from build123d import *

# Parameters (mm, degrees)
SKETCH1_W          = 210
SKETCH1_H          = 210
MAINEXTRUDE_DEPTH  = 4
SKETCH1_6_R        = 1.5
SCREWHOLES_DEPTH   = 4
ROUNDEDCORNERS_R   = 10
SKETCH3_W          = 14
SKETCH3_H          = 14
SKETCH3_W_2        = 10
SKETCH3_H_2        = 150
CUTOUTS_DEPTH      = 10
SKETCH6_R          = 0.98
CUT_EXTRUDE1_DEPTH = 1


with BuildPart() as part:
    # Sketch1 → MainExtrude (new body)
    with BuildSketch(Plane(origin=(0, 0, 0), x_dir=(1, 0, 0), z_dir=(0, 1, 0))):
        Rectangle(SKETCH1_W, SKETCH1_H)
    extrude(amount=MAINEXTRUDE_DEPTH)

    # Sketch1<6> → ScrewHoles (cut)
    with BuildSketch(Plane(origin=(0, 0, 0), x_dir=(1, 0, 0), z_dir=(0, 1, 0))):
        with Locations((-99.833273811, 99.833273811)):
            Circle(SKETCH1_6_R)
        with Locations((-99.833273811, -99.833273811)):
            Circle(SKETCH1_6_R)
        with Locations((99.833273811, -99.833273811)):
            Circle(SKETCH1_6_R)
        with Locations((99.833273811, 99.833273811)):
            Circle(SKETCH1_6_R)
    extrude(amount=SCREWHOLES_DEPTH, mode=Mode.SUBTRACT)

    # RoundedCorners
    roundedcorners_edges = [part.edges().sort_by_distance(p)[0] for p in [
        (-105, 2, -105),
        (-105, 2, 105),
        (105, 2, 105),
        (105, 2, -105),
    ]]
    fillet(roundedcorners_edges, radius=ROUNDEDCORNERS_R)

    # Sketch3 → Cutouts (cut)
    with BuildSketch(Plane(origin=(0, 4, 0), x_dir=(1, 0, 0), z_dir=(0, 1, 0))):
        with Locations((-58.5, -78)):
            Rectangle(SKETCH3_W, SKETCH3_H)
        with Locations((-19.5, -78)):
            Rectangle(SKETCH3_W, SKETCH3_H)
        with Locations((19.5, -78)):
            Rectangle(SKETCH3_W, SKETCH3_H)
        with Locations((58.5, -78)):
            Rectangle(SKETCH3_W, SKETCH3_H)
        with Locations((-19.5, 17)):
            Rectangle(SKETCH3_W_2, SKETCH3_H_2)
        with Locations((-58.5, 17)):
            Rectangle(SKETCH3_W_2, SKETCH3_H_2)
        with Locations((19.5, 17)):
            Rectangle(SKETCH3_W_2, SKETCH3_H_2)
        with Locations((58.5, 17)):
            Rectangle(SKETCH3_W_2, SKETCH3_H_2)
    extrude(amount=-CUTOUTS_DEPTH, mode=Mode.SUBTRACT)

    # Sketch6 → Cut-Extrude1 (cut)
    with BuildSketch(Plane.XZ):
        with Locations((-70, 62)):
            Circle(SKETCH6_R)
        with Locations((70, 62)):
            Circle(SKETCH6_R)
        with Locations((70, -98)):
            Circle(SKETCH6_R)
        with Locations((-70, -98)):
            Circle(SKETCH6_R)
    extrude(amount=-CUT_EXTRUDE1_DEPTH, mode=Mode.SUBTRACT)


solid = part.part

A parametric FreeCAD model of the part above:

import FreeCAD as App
import Part
import Sketcher
Q = App.Units.Quantity


def edges_at(feature, points):
    """Names of the edges that pass closest to the given points."""
    edges = feature.Shape.Edges
    near = lambda p: min(range(len(edges)), key=lambda i: edges[i].distToShape(Part.Vertex(*p))[0])
    return sorted({f"Edge{near(p) + 1}" for p in points})


def add_polygon(sketch, points):
    """Adds a closed chain of lines whose ends are joined by coincident constraints."""
    first, n = sketch.GeometryCount, len(points)
    for a, b in zip(points, points[1:] + points[:1]):
        sketch.addGeometry(Part.LineSegment(App.Vector(*a, 0), App.Vector(*b, 0)), False)
    for i in range(n):
        sketch.addConstraint(Sketcher.Constraint("Coincident", first + i, 2, first + (i + 1) % n, 1))

doc = App.newDocument("Part")
params = doc.addObject("Spreadsheet::Sheet", "Params")
for row, (alias, value) in enumerate([
    ("sketch1_width", "210 mm"),
    ("pad1_length", "4 mm"),
    ("sketch2_diameter", "3 mm"),
    ("pocket1_length", "4 mm"),
    ("fillet_radius", "10 mm"),
    ("sketch3_width", "14 mm"),
    ("sketch3_width2", "10 mm"),
    ("sketch3_height", "150 mm"),
    ("pocket2_length", "10 mm"),
    ("sketch4_diameter", "1.96 mm"),
    ("pocket3_length", "1 mm"),
], start=1):
    params.set(f"A{row}", alias)
    params.set(f"B{row}", "=" + value)
    params.setAlias(f"B{row}", alias)

body = doc.addObject("PartDesign::Body", "Body")

# Sketch on XZ plane
sketch1 = doc.addObject("Sketcher::SketchObject", "Sketch")
body.addObject(sketch1)
sketch1.AttachmentSupport = (doc.XZ_Plane, [""])
sketch1.MapMode = "FlatFace"
add_polygon(sketch1, [(-105, -105), (-105, 105), (105, 105), (105, -105)])  # lines 0-3
sketch1.addConstraint([
    Sketcher.Constraint("Vertical", 0),
    Sketcher.Constraint("Horizontal", 1),
    Sketcher.Constraint("Vertical", 2),
    Sketcher.Constraint("Horizontal", 3),
    Sketcher.Constraint("Symmetric", 0, 2, 2, 2, -1, 1),
    Sketcher.Constraint("Equal", 3, 0),
    Sketcher.Constraint("DistanceX", 1, 1, 1, 2, Q("210 mm")),
])
sketch1.setExpression("Constraints[10]", "Params.sketch1_width")
pad1 = doc.addObject("PartDesign::Pad", "Pad")
body.addObject(pad1)
pad1.Profile = sketch1
pad1.setExpression("Length", "Params.pad1_length")
pad1.Reversed = True

# Sketch on XZ plane
sketch2 = doc.addObject("Sketcher::SketchObject", "Sketch001")
body.addObject(sketch2)
sketch2.AttachmentSupport = (doc.XZ_Plane, [""])
sketch2.MapMode = "FlatFace"
sketch2.addGeometry([
    Part.Circle(App.Vector(-99.8, -99.8, 0), App.Vector(0, 0, 1), 1.5),
    Part.Circle(App.Vector(-99.8, 99.8, 0), App.Vector(0, 0, 1), 1.5),
    Part.Circle(App.Vector(99.8, 99.8, 0), App.Vector(0, 0, 1), 1.5),
    Part.Circle(App.Vector(99.8, -99.8, 0), App.Vector(0, 0, 1), 1.5),
], False)
sketch2.addConstraint([
    Sketcher.Constraint("Equal", 0, 1),
    Sketcher.Constraint("Equal", 1, 2),
    Sketcher.Constraint("Equal", 2, 3),
    Sketcher.Constraint("Symmetric", 0, 3, 2, 3, -1, 1),
    Sketcher.Constraint("Symmetric", 1, 3, 3, 3, -1, 1),
    Sketcher.Constraint("Symmetric", 1, 3, 2, 3, -2),
    Sketcher.Constraint("Diameter", 0, Q("3 mm")),
    Sketcher.Constraint("DistanceX", 0, 3, -1, 1, Q("99.833274 mm")),
    Sketcher.Constraint("DistanceY", 0, 3, -1, 1, Q("99.833274 mm")),
])
sketch2.setExpression("Constraints[6]", "Params.sketch2_diameter")
pocket1 = doc.addObject("PartDesign::Pocket", "Pocket")
body.addObject(pocket1)
pocket1.Profile = sketch2
pocket1.setExpression("Length", "Params.pocket1_length")
doc.recompute()

fillet = doc.addObject("PartDesign::Fillet", "Fillet")
body.addObject(fillet)
fillet.Base = (pocket1, edges_at(pocket1, [
    (-105, 2, -105),
    (-105, 2, 105),
    (105, 2, 105),
    (105, 2, -105),
]))
fillet.setExpression("Radius", "Params.fillet_radius")

# Sketch on XZ plane
sketch3 = doc.addObject("Sketcher::SketchObject", "Sketch002")
body.addObject(sketch3)
sketch3.AttachmentSupport = (doc.XZ_Plane, [""])
sketch3.MapMode = "FlatFace"
sketch3.AttachmentOffset = App.Placement(App.Vector(0, 0, -4), App.Rotation())
add_polygon(sketch3, [(-66, 71), (-66, 85), (-52, 85), (-52, 71)])  # lines 0-3
add_polygon(sketch3, [(-26, 71), (-26, 85), (-12, 85), (-12, 71)])  # lines 4-7
add_polygon(sketch3, [(12, 71), (12, 85), (26, 85), (26, 71)])  # lines 8-11
add_polygon(sketch3, [(52, 71), (52, 85), (66, 85), (66, 71)])  # lines 12-15
add_polygon(sketch3, [(-24, -92), (-24, 58), (-14, 58), (-14, -92)])  # lines 16-19
add_polygon(sketch3, [(-64, -92), (-64, 58), (-54, 58), (-54, -92)])  # lines 20-23
add_polygon(sketch3, [(14, -92), (14, 58), (24, 58), (24, -92)])  # lines 24-27
add_polygon(sketch3, [(54, -92), (54, 58), (64, 58), (64, -92)])  # lines 28-31
sketch3.addConstraint([
    Sketcher.Constraint("Vertical", 0),
    Sketcher.Constraint("Horizontal", 1),
    Sketcher.Constraint("Vertical", 2),
    Sketcher.Constraint("Horizontal", 3),
    Sketcher.Constraint("Vertical", 4),
    Sketcher.Constraint("Horizontal", 5),
    Sketcher.Constraint("Vertical", 6),
    Sketcher.Constraint("Horizontal", 7),
    Sketcher.Constraint("Vertical", 8),
    Sketcher.Constraint("Horizontal", 9),
    Sketcher.Constraint("Vertical", 10),
    Sketcher.Constraint("Horizontal", 11),
    Sketcher.Constraint("Vertical", 12),
    Sketcher.Constraint("Horizontal", 13),
    Sketcher.Constraint("Vertical", 14),
    Sketcher.Constraint("Horizontal", 15),
    Sketcher.Constraint("Vertical", 16),
    Sketcher.Constraint("Horizontal", 17),
    Sketcher.Constraint("Vertical", 18),
    Sketcher.Constraint("Horizontal", 19),
    Sketcher.Constraint("Vertical", 20),
    Sketcher.Constraint("Horizontal", 21),
    Sketcher.Constraint("Vertical", 22),
    Sketcher.Constraint("Horizontal", 23),
    Sketcher.Constraint("Vertical", 24),
    Sketcher.Constraint("Horizontal", 25),
    Sketcher.Constraint("Vertical", 26),
    Sketcher.Constraint("Horizontal", 27),
    Sketcher.Constraint("Vertical", 28),
    Sketcher.Constraint("Horizontal", 29),
    Sketcher.Constraint("Vertical", 30),
    Sketcher.Constraint("Horizontal", 31),
    Sketcher.Constraint("Symmetric", 5, 2, 8, 2, -2),
    Sketcher.Constraint("Symmetric", 7, 2, 10, 2, -2),
    Sketcher.Constraint("Symmetric", 1, 2, 12, 2, -2),
    Sketcher.Constraint("Symmetric", 3, 2, 14, 2, -2),
    Sketcher.Constraint("Symmetric", 17, 2, 24, 2, -2),
    Sketcher.Constraint("Symmetric", 19, 2, 26, 2, -2),
    Sketcher.Constraint("Symmetric", 21, 2, 28, 2, -2),
    Sketcher.Constraint("Symmetric", 23, 2, 30, 2, -2),
    Sketcher.Constraint("Horizontal", 1, 2, 4, 2),
    Sketcher.Constraint("Horizontal", 3, 2, 6, 2),
    Sketcher.Constraint("Horizontal", 17, 2, 20, 2),
    Sketcher.Constraint("Horizontal", 19, 2, 22, 2),
    Sketcher.Constraint("Equal", 3, 5),
    Sketcher.Constraint("Equal", 19, 21),
    Sketcher.Constraint("Equal", 15, 0),
    Sketcher.Constraint("DistanceX", 1, 1, 1, 2, Q("14 mm")),
    Sketcher.Constraint("DistanceX", 17, 1, 17, 2, Q("10 mm")),
    Sketcher.Constraint("DistanceY", 16, 1, 16, 2, Q("150 mm")),
    Sketcher.Constraint("DistanceY", -1, 1, 0, 2, Q("85 mm")),
    Sketcher.Constraint("DistanceY", -1, 1, 16, 2, Q("58 mm")),
    Sketcher.Constraint("DistanceX", 1, 2, 4, 2, Q("25 mm")),
    Sketcher.Constraint("DistanceX", 5, 2, 8, 2, Q("25 mm")),
    Sketcher.Constraint("DistanceX", 7, 2, 16, 2, Q("2 mm")),
    Sketcher.Constraint("DistanceX", 3, 2, 20, 2, Q("2 mm")),
])
sketch3.setExpression("Constraints[79]", "Params.sketch3_width")
sketch3.setExpression("Constraints[80]", "Params.sketch3_width2")
sketch3.setExpression("Constraints[81]", "Params.sketch3_height")
pocket2 = doc.addObject("PartDesign::Pocket", "Pocket001")
body.addObject(pocket2)
pocket2.Profile = sketch3
pocket2.setExpression("Length", "Params.pocket2_length")
pocket2.Reversed = True

# Sketch on XZ plane
sketch4 = doc.addObject("Sketcher::SketchObject", "Sketch003")
body.addObject(sketch4)
sketch4.AttachmentSupport = (doc.XZ_Plane, [""])
sketch4.MapMode = "FlatFace"
sketch4.addGeometry([
    Part.Circle(App.Vector(-70, 62, 0), App.Vector(0, 0, 1), 1),
    Part.Circle(App.Vector(70, 62, 0), App.Vector(0, 0, 1), 1),
    Part.Circle(App.Vector(70, -98, 0), App.Vector(0, 0, 1), 1),
    Part.Circle(App.Vector(-70, -98, 0), App.Vector(0, 0, 1), 1),
], False)
sketch4.addConstraint([
    Sketcher.Constraint("Equal", 0, 1),
    Sketcher.Constraint("Equal", 1, 2),
    Sketcher.Constraint("Equal", 2, 3),
    Sketcher.Constraint("Symmetric", 0, 3, 1, 3, -2),
    Sketcher.Constraint("Symmetric", 2, 3, 3, 3, -2),
    Sketcher.Constraint("Vertical", 1, 3, 2, 3),
    Sketcher.Constraint("Diameter", 0, Q("1.96 mm")),
    Sketcher.Constraint("DistanceX", 0, 3, -1, 1, Q("70 mm")),
    Sketcher.Constraint("DistanceY", -1, 1, 0, 3, Q("62 mm")),
    Sketcher.Constraint("DistanceY", 2, 3, -1, 1, Q("98 mm")),
])
sketch4.setExpression("Constraints[6]", "Params.sketch4_diameter")
pocket3 = doc.addObject("PartDesign::Pocket", "Pocket002")
body.addObject(pocket3)
pocket3.Profile = sketch4
pocket3.setExpression("Length", "Params.pocket3_length")

doc.recompute()
